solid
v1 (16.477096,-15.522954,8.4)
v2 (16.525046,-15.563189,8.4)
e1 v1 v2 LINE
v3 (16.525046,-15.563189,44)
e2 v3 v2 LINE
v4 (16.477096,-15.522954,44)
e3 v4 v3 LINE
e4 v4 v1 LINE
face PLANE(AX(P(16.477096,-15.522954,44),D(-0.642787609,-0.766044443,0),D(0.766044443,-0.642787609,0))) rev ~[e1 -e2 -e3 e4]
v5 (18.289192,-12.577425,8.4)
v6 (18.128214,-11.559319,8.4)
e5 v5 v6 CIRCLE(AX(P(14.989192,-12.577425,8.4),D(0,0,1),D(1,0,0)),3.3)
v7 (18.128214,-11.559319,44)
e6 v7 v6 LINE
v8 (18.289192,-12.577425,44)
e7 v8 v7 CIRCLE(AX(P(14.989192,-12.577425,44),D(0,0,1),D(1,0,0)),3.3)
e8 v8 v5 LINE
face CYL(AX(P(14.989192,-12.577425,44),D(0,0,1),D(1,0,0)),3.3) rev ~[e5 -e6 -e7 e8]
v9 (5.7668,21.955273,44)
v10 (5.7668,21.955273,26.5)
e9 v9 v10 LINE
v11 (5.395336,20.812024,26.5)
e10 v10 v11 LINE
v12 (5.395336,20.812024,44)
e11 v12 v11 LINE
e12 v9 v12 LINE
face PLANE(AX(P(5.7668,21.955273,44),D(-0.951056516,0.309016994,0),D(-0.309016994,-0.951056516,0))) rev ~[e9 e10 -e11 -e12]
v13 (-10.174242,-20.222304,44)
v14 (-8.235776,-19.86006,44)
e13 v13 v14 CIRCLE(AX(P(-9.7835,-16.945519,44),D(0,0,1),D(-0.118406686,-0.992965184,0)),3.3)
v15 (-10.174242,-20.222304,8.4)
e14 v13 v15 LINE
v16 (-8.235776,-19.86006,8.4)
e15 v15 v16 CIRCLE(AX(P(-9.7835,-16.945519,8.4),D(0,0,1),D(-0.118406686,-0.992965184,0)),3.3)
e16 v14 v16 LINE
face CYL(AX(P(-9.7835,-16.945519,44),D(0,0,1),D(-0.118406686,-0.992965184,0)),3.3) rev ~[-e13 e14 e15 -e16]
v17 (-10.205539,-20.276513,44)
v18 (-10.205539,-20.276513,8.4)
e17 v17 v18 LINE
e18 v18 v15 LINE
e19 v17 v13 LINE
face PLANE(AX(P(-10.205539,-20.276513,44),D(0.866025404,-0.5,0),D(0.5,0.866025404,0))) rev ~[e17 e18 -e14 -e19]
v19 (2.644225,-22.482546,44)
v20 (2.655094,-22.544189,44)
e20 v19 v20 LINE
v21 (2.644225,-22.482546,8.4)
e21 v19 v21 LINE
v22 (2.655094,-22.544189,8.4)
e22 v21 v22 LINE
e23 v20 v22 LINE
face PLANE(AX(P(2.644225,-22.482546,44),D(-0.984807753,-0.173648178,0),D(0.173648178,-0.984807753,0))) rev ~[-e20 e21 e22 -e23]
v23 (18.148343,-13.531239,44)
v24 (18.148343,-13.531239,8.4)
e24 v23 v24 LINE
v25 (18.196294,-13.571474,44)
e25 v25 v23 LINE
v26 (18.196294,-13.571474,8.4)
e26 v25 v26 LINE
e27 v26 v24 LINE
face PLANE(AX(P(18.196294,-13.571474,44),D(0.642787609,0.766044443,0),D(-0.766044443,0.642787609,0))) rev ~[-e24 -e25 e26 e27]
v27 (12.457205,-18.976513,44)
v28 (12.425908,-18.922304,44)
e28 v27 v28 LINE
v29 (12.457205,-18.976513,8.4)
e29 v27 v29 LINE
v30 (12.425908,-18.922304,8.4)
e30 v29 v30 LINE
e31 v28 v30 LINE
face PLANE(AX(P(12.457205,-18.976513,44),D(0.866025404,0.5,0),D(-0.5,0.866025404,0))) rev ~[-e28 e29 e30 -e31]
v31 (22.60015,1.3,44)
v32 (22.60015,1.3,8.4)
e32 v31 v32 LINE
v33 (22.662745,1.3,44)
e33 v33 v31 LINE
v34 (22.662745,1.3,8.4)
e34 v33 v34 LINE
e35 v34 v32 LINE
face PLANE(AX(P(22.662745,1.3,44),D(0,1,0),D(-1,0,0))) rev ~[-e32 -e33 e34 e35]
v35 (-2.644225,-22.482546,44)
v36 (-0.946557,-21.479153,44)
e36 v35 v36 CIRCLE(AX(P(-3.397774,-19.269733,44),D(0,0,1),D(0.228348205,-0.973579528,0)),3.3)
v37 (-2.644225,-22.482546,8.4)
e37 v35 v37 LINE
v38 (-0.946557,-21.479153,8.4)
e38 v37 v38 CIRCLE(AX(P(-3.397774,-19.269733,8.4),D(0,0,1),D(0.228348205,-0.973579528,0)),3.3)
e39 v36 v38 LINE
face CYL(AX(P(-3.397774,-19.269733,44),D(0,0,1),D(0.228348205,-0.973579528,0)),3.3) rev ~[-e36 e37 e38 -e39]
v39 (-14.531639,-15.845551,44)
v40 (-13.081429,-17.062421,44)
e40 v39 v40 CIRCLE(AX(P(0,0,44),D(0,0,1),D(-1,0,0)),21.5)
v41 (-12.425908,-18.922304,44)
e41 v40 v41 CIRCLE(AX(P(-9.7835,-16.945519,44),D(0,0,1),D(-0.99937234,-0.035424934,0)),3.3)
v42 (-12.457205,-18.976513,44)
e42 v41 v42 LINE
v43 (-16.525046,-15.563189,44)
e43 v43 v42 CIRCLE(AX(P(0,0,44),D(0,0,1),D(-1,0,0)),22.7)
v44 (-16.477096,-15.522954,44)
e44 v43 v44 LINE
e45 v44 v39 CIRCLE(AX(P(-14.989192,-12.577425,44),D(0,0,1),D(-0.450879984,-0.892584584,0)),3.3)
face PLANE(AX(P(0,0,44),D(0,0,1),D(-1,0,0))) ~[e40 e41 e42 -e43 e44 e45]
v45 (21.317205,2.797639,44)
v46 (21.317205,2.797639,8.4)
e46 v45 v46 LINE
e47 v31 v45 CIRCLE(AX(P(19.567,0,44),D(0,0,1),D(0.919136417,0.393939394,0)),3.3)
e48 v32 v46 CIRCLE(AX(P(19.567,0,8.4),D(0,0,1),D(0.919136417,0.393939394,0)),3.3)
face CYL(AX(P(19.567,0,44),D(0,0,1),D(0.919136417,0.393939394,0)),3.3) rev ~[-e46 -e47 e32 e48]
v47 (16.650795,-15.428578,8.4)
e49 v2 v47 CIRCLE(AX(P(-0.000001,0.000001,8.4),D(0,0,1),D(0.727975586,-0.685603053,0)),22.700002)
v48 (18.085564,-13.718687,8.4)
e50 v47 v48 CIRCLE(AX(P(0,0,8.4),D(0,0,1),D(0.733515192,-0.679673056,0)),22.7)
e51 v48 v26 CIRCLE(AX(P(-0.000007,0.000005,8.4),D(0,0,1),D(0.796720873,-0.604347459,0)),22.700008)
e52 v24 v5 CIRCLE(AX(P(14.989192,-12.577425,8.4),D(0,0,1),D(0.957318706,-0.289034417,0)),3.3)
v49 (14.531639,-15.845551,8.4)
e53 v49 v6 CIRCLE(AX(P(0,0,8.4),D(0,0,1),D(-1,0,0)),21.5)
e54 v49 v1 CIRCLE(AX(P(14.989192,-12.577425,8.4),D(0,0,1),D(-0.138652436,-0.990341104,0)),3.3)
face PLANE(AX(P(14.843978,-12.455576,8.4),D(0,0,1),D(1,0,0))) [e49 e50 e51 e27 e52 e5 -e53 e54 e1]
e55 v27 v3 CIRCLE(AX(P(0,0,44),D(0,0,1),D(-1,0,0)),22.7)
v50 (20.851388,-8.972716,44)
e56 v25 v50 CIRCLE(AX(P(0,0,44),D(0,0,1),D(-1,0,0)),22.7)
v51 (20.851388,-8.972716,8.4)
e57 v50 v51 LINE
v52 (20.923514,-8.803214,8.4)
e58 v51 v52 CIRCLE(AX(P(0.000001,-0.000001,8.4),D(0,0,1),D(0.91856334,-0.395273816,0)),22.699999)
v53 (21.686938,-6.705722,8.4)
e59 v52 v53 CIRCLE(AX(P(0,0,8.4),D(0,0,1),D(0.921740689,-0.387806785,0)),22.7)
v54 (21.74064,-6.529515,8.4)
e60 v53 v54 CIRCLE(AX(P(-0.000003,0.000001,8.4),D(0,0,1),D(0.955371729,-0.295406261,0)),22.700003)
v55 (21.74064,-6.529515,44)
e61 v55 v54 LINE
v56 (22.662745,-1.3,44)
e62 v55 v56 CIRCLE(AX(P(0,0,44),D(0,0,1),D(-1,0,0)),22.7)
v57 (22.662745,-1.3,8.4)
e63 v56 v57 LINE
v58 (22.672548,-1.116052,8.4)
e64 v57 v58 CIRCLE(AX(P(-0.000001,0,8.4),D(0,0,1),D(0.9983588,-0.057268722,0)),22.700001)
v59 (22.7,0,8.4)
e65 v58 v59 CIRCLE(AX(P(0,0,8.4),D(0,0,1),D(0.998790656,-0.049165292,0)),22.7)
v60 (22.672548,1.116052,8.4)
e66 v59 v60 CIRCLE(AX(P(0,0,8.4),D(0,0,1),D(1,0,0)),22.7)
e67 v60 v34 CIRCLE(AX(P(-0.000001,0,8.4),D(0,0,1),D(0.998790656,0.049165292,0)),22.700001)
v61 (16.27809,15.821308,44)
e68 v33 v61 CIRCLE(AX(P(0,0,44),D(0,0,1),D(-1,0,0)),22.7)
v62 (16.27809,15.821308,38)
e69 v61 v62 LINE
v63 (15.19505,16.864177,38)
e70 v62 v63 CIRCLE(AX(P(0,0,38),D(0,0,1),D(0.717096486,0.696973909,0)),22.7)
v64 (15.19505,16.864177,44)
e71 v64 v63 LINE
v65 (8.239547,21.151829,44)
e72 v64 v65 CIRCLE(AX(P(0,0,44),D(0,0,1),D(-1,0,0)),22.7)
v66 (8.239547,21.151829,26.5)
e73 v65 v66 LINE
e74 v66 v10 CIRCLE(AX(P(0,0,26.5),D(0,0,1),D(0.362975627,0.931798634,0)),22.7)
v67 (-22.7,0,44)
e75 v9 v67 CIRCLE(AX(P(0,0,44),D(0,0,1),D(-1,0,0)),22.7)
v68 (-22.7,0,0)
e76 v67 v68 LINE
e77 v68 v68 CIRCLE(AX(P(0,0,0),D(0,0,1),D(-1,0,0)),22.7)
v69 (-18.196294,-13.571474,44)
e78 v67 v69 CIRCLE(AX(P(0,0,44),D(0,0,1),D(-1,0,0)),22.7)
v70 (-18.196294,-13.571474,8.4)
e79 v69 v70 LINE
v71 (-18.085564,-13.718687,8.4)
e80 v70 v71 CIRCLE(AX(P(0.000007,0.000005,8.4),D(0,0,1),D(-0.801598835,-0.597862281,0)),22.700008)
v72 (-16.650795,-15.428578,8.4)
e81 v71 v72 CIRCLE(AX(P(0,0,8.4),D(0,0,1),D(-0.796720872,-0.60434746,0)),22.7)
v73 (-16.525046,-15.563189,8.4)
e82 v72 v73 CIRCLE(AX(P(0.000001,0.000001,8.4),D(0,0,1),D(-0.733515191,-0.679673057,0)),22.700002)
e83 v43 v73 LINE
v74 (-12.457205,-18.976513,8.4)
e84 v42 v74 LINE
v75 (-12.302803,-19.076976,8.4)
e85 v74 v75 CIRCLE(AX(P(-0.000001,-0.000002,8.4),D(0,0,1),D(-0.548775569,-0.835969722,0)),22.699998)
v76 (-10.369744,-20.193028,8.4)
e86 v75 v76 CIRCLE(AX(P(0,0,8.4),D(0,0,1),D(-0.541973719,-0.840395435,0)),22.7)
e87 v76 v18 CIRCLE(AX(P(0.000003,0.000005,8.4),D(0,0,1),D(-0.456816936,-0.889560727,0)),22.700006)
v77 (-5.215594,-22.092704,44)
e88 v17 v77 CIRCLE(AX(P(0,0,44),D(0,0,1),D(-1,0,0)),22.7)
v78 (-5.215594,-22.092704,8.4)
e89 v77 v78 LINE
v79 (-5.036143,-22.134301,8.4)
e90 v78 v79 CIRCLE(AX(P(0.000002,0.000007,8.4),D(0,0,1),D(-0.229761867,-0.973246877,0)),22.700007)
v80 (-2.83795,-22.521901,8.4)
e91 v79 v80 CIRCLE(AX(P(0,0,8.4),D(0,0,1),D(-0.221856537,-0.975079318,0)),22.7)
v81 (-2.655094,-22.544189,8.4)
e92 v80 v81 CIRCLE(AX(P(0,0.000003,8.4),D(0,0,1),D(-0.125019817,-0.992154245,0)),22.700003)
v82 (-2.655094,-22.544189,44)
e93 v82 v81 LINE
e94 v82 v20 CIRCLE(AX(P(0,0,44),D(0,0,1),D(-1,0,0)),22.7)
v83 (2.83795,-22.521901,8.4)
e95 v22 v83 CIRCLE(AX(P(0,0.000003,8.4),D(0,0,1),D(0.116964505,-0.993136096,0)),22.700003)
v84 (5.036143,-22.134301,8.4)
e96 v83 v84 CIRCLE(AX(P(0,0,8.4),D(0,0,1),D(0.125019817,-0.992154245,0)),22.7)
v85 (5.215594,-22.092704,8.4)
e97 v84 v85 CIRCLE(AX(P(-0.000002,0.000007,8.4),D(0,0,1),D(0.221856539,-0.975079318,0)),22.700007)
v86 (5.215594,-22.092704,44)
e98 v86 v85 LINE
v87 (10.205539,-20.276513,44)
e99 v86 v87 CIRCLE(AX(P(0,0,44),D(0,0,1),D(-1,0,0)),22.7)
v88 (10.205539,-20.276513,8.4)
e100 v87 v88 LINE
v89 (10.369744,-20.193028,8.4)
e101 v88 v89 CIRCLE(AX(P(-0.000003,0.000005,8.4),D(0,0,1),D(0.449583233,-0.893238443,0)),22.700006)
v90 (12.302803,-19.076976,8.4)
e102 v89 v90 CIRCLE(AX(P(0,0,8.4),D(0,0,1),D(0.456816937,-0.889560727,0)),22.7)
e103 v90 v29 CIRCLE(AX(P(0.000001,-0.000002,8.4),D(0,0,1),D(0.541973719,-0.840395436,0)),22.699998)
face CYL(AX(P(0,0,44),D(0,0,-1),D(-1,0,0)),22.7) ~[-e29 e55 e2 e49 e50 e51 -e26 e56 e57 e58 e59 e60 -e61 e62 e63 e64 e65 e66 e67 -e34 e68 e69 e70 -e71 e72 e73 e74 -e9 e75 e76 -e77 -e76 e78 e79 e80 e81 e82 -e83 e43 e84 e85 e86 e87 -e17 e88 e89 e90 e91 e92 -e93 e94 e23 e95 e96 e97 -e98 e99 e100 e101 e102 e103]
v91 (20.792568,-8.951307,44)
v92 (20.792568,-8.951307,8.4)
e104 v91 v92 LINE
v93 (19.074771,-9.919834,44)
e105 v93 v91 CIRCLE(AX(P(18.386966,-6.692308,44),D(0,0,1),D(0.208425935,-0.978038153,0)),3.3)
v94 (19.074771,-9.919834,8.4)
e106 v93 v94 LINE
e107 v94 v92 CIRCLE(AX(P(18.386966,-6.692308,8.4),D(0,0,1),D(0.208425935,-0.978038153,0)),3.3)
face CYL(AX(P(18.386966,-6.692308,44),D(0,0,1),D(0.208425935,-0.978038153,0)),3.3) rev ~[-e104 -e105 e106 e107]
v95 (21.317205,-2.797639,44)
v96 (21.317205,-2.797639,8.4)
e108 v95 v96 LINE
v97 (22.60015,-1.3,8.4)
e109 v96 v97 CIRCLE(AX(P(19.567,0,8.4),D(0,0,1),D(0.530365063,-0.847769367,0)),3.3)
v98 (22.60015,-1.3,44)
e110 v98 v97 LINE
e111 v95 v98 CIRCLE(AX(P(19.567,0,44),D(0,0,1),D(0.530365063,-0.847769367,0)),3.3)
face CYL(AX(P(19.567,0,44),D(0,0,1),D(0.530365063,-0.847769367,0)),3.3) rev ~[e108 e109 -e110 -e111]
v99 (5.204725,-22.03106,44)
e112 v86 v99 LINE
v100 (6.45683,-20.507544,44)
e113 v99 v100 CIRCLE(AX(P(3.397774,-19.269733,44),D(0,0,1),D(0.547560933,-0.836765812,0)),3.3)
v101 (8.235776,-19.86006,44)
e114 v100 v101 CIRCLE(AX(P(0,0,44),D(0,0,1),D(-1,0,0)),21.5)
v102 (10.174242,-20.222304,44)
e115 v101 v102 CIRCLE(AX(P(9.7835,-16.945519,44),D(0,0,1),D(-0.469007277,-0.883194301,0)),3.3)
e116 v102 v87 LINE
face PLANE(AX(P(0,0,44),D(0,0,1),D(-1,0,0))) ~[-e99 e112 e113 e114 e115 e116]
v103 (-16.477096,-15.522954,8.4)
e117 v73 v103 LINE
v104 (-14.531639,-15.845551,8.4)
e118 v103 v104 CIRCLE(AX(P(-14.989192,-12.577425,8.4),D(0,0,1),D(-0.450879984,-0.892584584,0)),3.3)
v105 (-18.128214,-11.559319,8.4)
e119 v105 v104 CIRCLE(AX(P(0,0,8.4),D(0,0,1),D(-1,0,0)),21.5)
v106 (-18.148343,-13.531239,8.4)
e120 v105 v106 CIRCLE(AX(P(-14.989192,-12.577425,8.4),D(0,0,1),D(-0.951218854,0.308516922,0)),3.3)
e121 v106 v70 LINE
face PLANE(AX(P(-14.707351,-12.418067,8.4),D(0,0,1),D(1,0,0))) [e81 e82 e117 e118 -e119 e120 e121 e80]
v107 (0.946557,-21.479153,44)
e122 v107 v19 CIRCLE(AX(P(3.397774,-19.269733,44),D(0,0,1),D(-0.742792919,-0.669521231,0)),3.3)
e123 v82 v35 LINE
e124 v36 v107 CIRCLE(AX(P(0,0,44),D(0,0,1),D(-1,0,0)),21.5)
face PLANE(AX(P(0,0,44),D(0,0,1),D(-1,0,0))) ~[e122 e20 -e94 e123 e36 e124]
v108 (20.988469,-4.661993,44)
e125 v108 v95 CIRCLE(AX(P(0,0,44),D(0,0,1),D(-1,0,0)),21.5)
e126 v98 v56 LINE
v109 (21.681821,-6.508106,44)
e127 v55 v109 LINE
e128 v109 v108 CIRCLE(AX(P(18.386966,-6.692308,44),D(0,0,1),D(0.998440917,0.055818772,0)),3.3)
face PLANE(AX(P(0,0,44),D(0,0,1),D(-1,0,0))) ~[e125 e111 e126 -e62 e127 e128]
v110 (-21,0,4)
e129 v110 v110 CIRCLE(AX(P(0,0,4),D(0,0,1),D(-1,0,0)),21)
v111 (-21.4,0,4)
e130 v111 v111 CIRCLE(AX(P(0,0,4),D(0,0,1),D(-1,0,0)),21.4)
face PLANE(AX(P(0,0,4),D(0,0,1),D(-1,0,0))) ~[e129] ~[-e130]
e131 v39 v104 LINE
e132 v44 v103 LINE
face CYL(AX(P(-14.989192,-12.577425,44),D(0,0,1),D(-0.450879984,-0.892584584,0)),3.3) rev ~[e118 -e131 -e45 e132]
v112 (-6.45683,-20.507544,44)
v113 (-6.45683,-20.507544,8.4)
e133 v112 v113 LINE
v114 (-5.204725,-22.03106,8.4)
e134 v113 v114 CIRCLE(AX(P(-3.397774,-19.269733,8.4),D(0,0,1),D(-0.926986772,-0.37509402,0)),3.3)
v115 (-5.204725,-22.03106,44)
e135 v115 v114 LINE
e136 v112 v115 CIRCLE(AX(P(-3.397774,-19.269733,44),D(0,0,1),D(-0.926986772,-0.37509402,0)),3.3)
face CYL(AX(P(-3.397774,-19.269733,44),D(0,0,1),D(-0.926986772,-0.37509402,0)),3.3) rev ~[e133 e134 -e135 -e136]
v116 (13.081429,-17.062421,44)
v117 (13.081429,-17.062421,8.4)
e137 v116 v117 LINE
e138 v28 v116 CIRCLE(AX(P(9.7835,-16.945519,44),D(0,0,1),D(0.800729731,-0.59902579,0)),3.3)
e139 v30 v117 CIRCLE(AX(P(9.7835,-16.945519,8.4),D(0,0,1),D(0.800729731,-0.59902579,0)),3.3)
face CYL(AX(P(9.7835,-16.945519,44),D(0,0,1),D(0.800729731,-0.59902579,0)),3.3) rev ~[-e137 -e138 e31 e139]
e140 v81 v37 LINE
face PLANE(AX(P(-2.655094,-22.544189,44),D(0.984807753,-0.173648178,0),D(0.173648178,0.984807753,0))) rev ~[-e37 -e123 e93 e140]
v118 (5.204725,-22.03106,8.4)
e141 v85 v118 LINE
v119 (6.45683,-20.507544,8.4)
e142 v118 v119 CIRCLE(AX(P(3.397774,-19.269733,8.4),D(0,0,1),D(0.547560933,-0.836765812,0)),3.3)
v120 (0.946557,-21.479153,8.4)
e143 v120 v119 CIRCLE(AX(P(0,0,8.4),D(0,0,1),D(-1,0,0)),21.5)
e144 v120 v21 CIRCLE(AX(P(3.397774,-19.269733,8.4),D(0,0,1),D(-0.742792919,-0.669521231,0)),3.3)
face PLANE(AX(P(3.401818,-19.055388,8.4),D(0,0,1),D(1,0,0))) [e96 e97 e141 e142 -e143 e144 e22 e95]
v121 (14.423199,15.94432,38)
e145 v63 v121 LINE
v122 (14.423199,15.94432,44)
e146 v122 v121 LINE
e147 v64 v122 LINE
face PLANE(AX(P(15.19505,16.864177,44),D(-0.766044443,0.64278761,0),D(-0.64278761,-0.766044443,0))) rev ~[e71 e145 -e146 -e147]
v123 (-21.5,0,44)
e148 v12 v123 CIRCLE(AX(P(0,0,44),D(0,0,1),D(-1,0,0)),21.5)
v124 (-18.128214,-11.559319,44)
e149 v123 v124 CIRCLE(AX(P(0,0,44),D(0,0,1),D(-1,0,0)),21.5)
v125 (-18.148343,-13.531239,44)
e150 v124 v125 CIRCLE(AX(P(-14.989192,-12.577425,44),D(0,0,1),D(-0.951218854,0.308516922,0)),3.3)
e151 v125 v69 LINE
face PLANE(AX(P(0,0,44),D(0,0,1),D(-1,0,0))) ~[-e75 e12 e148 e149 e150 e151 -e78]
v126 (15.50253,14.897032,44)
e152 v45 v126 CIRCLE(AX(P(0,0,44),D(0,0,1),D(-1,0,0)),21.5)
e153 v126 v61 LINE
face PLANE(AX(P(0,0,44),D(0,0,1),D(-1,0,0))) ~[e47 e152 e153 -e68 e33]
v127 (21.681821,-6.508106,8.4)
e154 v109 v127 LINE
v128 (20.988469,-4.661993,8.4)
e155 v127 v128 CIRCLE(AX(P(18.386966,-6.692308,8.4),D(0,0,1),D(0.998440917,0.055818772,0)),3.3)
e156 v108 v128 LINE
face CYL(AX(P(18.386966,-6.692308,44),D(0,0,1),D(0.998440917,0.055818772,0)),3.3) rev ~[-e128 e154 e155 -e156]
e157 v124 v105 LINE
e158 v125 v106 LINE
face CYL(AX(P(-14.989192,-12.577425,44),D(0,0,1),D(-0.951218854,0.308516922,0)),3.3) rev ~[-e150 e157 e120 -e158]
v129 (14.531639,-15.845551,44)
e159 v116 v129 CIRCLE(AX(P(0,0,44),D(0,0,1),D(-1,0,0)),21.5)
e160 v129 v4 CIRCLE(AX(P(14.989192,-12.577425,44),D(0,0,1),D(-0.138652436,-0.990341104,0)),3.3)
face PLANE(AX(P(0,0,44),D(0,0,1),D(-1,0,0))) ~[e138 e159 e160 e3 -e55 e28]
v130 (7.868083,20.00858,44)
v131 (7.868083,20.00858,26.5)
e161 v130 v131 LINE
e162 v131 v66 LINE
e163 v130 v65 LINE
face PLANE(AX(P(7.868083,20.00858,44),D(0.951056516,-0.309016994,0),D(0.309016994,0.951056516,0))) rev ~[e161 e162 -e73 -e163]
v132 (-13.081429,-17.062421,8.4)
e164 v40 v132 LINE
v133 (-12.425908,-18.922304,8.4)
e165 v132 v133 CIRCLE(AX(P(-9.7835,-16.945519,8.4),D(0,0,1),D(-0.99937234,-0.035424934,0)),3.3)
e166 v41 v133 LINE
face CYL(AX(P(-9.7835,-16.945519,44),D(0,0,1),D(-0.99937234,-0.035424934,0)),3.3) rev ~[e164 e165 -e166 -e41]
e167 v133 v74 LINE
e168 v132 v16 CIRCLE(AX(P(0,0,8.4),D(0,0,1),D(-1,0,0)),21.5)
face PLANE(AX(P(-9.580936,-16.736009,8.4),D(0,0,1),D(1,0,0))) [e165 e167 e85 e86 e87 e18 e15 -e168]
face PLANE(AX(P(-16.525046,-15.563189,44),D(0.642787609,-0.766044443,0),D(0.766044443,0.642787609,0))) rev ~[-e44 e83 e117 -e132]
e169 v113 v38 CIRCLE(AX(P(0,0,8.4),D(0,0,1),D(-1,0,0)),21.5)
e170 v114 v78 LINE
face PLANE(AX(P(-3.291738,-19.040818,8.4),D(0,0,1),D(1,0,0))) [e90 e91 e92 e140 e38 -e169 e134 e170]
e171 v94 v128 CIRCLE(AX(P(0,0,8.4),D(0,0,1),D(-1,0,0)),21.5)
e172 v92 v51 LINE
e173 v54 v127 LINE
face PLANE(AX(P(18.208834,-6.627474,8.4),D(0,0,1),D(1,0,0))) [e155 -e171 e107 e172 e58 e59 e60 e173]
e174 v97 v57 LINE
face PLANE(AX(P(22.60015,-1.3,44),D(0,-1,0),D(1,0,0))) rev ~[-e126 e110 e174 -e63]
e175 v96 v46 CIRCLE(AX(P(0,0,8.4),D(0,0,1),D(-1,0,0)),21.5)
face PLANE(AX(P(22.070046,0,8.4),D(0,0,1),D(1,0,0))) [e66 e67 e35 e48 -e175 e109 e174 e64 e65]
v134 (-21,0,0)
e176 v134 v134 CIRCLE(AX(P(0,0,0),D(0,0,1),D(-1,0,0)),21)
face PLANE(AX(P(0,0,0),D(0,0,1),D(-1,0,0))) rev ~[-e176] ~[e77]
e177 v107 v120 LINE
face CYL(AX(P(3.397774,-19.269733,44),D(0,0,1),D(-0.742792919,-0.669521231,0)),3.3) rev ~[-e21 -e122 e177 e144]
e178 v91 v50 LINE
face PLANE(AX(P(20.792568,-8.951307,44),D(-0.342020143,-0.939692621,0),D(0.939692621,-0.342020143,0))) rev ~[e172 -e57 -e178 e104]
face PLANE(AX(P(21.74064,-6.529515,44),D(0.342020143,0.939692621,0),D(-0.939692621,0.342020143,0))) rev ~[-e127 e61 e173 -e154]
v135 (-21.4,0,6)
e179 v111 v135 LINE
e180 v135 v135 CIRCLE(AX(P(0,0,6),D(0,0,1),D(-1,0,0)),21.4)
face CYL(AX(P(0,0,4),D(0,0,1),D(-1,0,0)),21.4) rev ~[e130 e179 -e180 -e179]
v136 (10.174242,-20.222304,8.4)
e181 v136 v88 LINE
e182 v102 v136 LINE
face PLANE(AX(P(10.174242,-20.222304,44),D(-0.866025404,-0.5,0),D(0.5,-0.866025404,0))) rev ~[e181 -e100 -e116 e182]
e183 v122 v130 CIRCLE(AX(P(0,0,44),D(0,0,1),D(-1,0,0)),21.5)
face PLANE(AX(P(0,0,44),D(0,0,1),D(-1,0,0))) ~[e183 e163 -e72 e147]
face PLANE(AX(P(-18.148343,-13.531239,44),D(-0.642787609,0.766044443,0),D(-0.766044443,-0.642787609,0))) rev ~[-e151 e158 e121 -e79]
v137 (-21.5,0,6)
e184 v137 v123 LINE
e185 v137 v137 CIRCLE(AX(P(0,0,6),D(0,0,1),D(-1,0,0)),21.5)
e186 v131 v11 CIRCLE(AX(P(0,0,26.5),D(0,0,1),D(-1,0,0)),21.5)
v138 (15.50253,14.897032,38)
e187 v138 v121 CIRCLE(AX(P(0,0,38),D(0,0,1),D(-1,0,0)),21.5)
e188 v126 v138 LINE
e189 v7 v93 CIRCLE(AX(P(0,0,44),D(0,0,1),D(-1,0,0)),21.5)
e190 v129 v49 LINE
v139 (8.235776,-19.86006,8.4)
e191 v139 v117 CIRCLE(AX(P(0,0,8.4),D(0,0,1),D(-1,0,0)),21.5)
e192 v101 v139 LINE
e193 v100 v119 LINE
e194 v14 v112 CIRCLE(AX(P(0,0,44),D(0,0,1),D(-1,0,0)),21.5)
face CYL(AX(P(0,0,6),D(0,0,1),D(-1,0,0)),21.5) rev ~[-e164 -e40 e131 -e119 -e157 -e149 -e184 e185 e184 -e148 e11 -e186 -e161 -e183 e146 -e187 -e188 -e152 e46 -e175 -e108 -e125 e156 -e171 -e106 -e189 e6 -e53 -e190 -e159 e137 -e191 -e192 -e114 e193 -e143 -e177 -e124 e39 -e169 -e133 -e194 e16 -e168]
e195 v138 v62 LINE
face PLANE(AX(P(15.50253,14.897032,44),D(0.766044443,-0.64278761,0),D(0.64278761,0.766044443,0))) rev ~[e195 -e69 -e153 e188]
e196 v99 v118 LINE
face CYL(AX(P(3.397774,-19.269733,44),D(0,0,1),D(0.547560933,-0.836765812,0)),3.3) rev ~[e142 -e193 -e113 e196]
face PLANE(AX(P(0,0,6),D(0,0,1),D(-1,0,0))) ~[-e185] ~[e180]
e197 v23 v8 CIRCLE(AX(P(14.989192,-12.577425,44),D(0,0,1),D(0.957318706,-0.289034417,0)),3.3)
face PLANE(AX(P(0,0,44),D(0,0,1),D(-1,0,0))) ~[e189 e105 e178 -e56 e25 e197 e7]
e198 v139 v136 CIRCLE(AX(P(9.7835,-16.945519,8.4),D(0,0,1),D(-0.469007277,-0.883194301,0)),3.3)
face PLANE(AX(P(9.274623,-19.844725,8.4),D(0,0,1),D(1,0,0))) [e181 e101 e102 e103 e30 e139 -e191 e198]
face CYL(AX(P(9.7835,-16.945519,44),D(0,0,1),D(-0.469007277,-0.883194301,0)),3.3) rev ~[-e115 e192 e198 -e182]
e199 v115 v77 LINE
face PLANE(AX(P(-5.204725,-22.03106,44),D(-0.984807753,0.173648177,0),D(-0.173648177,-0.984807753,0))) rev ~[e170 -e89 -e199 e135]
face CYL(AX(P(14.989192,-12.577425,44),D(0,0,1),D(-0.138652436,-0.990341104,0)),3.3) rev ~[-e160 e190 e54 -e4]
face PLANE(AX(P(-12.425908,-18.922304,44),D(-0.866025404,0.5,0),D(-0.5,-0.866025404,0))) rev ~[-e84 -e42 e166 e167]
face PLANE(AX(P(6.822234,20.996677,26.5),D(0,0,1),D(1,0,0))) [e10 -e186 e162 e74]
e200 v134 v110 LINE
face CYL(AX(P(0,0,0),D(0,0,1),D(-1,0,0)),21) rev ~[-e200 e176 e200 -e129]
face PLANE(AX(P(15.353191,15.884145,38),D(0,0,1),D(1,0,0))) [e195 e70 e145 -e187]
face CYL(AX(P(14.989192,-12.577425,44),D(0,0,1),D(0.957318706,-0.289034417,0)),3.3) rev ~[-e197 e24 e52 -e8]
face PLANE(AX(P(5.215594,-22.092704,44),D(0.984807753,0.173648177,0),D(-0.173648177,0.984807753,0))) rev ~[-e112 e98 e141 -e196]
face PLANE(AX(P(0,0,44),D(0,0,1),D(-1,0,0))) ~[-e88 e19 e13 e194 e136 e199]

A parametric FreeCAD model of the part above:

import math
import FreeCAD as App
import Part
import Sketcher
Q = App.Units.Quantity


def add_polygon(sketch, points):
    """Adds a closed chain of lines whose ends are joined by coincident constraints."""
    first, n = sketch.GeometryCount, len(points)
    for a, b in zip(points, points[1:] + points[:1]):
        sketch.addGeometry(Part.LineSegment(App.Vector(*a, 0), App.Vector(*b, 0)), False)
    for i in range(n):
        sketch.addConstraint(Sketcher.Constraint("Coincident", first + i, 2, first + (i + 1) % n, 1))

doc = App.newDocument("Part")
params = doc.addObject("Spreadsheet::Sheet", "Params")
for row, (alias, value) in enumerate([
    ("sketch1_height", "44 mm"),
    ("sketch1_height2", "4 mm"),
    ("sketch1_height3", "2 mm"),
    ("sketch1_width", "1.7 mm"),
    ("sketch1_width2", "0.4 mm"),
    ("revolution_angle", "360 deg"),
    ("sketch2_radius", "22.7 mm"),
    ("sketch2_radius2", "3.3 mm"),
    ("pocket1_length", "35.6 mm"),
    ("sketch3_radius", "21 mm"),
    ("sketch3_radius2", "22.7 mm"),
    ("pocket2_length", "17.5 mm"),
    ("sketch4_radius", "21 mm"),
    ("sketch4_radius2", "22.7 mm"),
    ("pocket3_length", "6 mm"),
], start=1):
    params.set(f"A{row}", alias)
    params.set(f"B{row}", "=" + value)
    params.setAlias(f"B{row}", alias)

body = doc.addObject("PartDesign::Body", "Body")

# Sketch on XZ plane
sketch1 = body.newObject("Sketcher::SketchObject", "Sketch")
sketch1.AttachmentSupport = (doc.getObject("XZ_Plane"), [""])
sketch1.MapMode = "FlatFace"
add_polygon(sketch1, [(-22.7, 44), (-22.7, 0), (-21, 0), (-21, 4), (-21.4, 4), (-21.4, 6), (-21.5, 6), (-21.5, 44)])  # lines 0-7
sketch1.addConstraint([
    Sketcher.Constraint("Vertical", 0),
    Sketcher.Constraint("Horizontal", 1),
    Sketcher.Constraint("Vertical", 2),
    Sketcher.Constraint("Horizontal", 3),
    Sketcher.Constraint("Vertical", 4),
    Sketcher.Constraint("Horizontal", 5),
    Sketcher.Constraint("Vertical", 6),
    Sketcher.Constraint("Horizontal", 7),
    Sketcher.Constraint("PointOnObject", 0, 2, -1),
    Sketcher.Constraint("DistanceY", 0, 2, 0, 1, Q("44 mm")),
    Sketcher.Constraint("DistanceY", 2, 1, 2, 2, Q("4 mm")),
    Sketcher.Constraint("DistanceY", 4, 1, 4, 2, Q("2 mm")),
    Sketcher.Constraint("DistanceX", 1, 1, 1, 2, Q("1.7 mm")),
    Sketcher.Constraint("DistanceX", 3, 2, 3, 1, Q("0.4 mm")),
    Sketcher.Constraint("DistanceX", 5, 2, 5, 1, Q("0.1 mm")),
    Sketcher.Constraint("DistanceX", 1, 2, -1, 1, Q("21 mm")),
])
sketch1.setExpression("Constraints[17]", "Params.sketch1_height")
sketch1.setExpression("Constraints[18]", "Params.sketch1_height2")
sketch1.setExpression("Constraints[19]", "Params.sketch1_height3")
sketch1.setExpression("Constraints[20]", "Params.sketch1_width")
sketch1.setExpression("Constraints[21]", "Params.sketch1_width2")
revolution = body.newObject("PartDesign::Revolution", "Revolution")
revolution.Profile = sketch1
revolution.ReferenceAxis = (sketch1, ["V_Axis"])
revolution.setExpression("Angle", "Params.revolution_angle")

# Sketch on XY plane
sketch2 = body.newObject("Sketcher::SketchObject", "Sketch001")
sketch2.AttachmentSupport = (doc.getObject("XY_Plane"), [""])
sketch2.MapMode = "FlatFace"
sketch2.AttachmentOffset = App.Placement(App.Vector(0, 0, 44), App.Rotation())
sketch2.addGeometry([
    Part.ArcOfCircle(Part.Circle(App.Vector(0, 0, 0), App.Vector(0, 0, 1), 22.7), math.radians(0), math.radians(2.82)),  # 0
    Part.ArcOfCircle(Part.Circle(App.Vector(0, 0, 0), App.Vector(0, 0, 1), 22.7), math.radians(2.82), math.radians(3.28)),  # 1
    Part.LineSegment(App.Vector(22.66, 1.3, 0), App.Vector(22.6, 1.3, 0)),  # 2
    Part.ArcOfCircle(Part.Circle(App.Vector(19.57, 0, 0), App.Vector(0, 0, 1), 3.3), math.radians(23), math.radians(58)),  # 3
    Part.ArcOfCircle(Part.Circle(App.Vector(19.57, 0, 0), App.Vector(0, 0, 1), 3.3), math.radians(58), math.radians(302)),  # 4
    Part.ArcOfCircle(Part.Circle(App.Vector(19.57, 0, 0), App.Vector(0, 0, 1), 3.3), math.radians(-58), math.radians(-23)),  # 5
    Part.LineSegment(App.Vector(22.6, -1.3, 0), App.Vector(22.66, -1.3, 0)),  # 6
    Part.ArcOfCircle(Part.Circle(App.Vector(0, 0, 0), App.Vector(0, 0, 1), 22.7), math.radians(-3.28), math.radians(-2.82)),  # 7
    Part.ArcOfCircle(Part.Circle(App.Vector(0, 0, 0), App.Vector(0, 0, 1), 22.7), math.radians(-2.82), math.radians(0)),  # 8
    Part.ArcOfCircle(Part.Circle(App.Vector(18.39, -6.69, 0), App.Vector(0, 0, 1), 3.3), math.radians(38), math.radians(282)),  # 9
    Part.ArcOfCircle(Part.Circle(App.Vector(18.39, -6.69, 0), App.Vector(0, 0, 1), 3.3), math.radians(-78), math.radians(-43)),  # 10
    Part.LineSegment(App.Vector(20.79, -8.95, 0), App.Vector(20.85, -8.97, 0)),  # 11
    Part.ArcOfCircle(Part.Circle(App.Vector(0, 0, 0), App.Vector(0, 0, 1), 22.7), math.radians(-23.28), math.radians(-22.82)),  # 12
    Part.ArcOfCircle(Part.Circle(App.Vector(0, 0, 0), App.Vector(0, 0, 1), 22.7), math.radians(-22.82), math.radians(-17.18)),  # 13
    Part.ArcOfCircle(Part.Circle(App.Vector(0, 0, 0), App.Vector(0, 0, 1), 22.7), math.radians(-17.18), math.radians(-16.72)),  # 14
    Part.LineSegment(App.Vector(21.74, -6.53, 0), App.Vector(21.68, -6.51, 0)),  # 15
    Part.ArcOfCircle(Part.Circle(App.Vector(18.39, -6.69, 0), App.Vector(0, 0, 1), 3.3), math.radians(3), math.radians(38)),  # 16
    Part.ArcOfCircle(Part.Circle(App.Vector(14.99, -12.58, 0), App.Vector(0, 0, 1), 3.3), math.radians(18), math.radians(262)),  # 17
    Part.ArcOfCircle(Part.Circle(App.Vector(14.99, -12.58, 0), App.Vector(0, 0, 1), 3.3), math.radians(-98), math.radians(-63)),  # 18
    Part.LineSegment(App.Vector(16.48, -15.52, 0), App.Vector(16.53, -15.56, 0)),  # 19
    Part.ArcOfCircle(Part.Circle(App.Vector(0, 0, 0), App.Vector(0, 0, 1), 22.7), math.radians(-43.28), math.radians(-42.82)),  # 20
    Part.ArcOfCircle(Part.Circle(App.Vector(0, 0, 0), App.Vector(0, 0, 1), 22.7), math.radians(-42.82), math.radians(-37.18)),  # 21
    Part.ArcOfCircle(Part.Circle(App.Vector(0, 0, 0), App.Vector(0, 0, 1), 22.7), math.radians(-37.18), math.radians(-36.72)),  # 22
    Part.LineSegment(App.Vector(18.2, -13.57, 0), App.Vector(18.15, -13.53, 0)),  # 23
    Part.ArcOfCircle(Part.Circle(App.Vector(14.99, -12.58, 0), App.Vector(0, 0, 1), 3.3), math.radians(-16.8), math.radians(0)),  # 24
    Part.ArcOfCircle(Part.Circle(App.Vector(14.99, -12.58, 0), App.Vector(0, 0, 1), 3.3), math.radians(0), math.radians(17.97)),  # 25
    Part.ArcOfCircle(Part.Circle(App.Vector(9.78, -16.95, 0), App.Vector(0, 0, 1), 3.3), math.radians(-118), math.radians(-83)),  # 26
    Part.LineSegment(App.Vector(10.17, -20.22, 0), App.Vector(10.21, -20.28, 0)),  # 27
    Part.ArcOfCircle(Part.Circle(App.Vector(0, 0, 0), App.Vector(0, 0, 1), 22.7), math.radians(-63.28), math.radians(-62.82)),  # 28
    Part.ArcOfCircle(Part.Circle(App.Vector(0, 0, 0), App.Vector(0, 0, 1), 22.7), math.radians(-62.82), math.radians(-57.18)),  # 29
    Part.ArcOfCircle(Part.Circle(App.Vector(0, 0, 0), App.Vector(0, 0, 1), 22.7), math.radians(-57.18), math.radians(-56.72)),  # 30
    Part.LineSegment(App.Vector(12.46, -18.98, 0), App.Vector(12.43, -18.92, 0)),  # 31
    Part.ArcOfCircle(Part.Circle(App.Vector(9.78, -16.95, 0), App.Vector(0, 0, 1), 3.3), math.radians(-37), math.radians(-2)),  # 32
    Part.ArcOfCircle(Part.Circle(App.Vector(9.78, -16.95, 0), App.Vector(0, 0, 1), 3.3), math.radians(-2.03), math.radians(0)),  # 33
    Part.ArcOfCircle(Part.Circle(App.Vector(9.78, -16.95, 0), App.Vector(0, 0, 1), 3.3), math.radians(0), math.radians(242)),  # 34
    Part.ArcOfCircle(Part.Circle(App.Vector(3.4, -19.27, 0), App.Vector(0, 0, 1), 3.3), math.radians(-22), math.radians(0)),  # 35
    Part.ArcOfCircle(Part.Circle(App.Vector(3.4, -19.27, 0), App.Vector(0, 0, 1), 3.3), math.radians(0), math.radians(222)),  # 36
    Part.ArcOfCircle(Part.Circle(App.Vector(3.4, -19.27, 0), App.Vector(0, 0, 1), 3.3), math.radians(-138), math.radians(-103)),  # 37
    Part.LineSegment(App.Vector(2.64, -22.48, 0), App.Vector(2.66, -22.54, 0)),  # 38
    Part.ArcOfCircle(Part.Circle(App.Vector(0, 0, 0), App.Vector(0, 0, 1), 22.7), math.radians(-83.28), math.radians(-82.82)),  # 39
    Part.ArcOfCircle(Part.Circle(App.Vector(0, 0, 0), App.Vector(0, 0, 1), 22.7), math.radians(-82.82), math.radians(-77.18)),  # 40
    Part.ArcOfCircle(Part.Circle(App.Vector(0, 0, 0), App.Vector(0, 0, 1), 22.7), math.radians(-77.18), math.radians(-76.72)),  # 41
    Part.LineSegment(App.Vector(5.22, -22.09, 0), App.Vector(5.2, -22.03, 0)),  # 42
    Part.ArcOfCircle(Part.Circle(App.Vector(3.4, -19.27, 0), App.Vector(0, 0, 1), 3.3), math.radians(-57), math.radians(-22)),  # 43
    Part.ArcOfCircle(Part.Circle(App.Vector(-3.4, -19.27, 0), App.Vector(0, 0, 1), 3.3), math.radians(0), math.radians(202)),  # 44
    Part.ArcOfCircle(Part.Circle(App.Vector(-3.4, -19.27, 0), App.Vector(0, 0, 1), 3.3), math.radians(-158), math.radians(-123)),  # 45
    Part.LineSegment(App.Vector(-5.2, -22.03, 0), App.Vector(-5.22, -22.09, 0)),  # 46
    Part.ArcOfCircle(Part.Circle(App.Vector(0, 0, 0), App.Vector(0, 0, 1), 22.7), math.radians(-103.28), math.radians(-102.82)),  # 47
    Part.ArcOfCircle(Part.Circle(App.Vector(0, 0, 0), App.Vector(0, 0, 1), 22.7), math.radians(-102.82), math.radians(-97.18)),  # 48
    Part.ArcOfCircle(Part.Circle(App.Vector(0, 0, 0), App.Vector(0, 0, 1), 22.7), math.radians(-97.18), math.radians(-96.72)),  # 49
    Part.LineSegment(App.Vector(-2.66, -22.54, 0), App.Vector(-2.64, -22.48, 0)),  # 50
    Part.ArcOfCircle(Part.Circle(App.Vector(-3.4, -19.27, 0), App.Vector(0, 0, 1), 3.3), math.radians(-77), math.radians(-42)),  # 51
    Part.ArcOfCircle(Part.Circle(App.Vector(-3.4, -19.27, 0), App.Vector(0, 0, 1), 3.3), math.radians(-42), math.radians(0)),  # 52
    Part.ArcOfCircle(Part.Circle(App.Vector(-9.78, -16.95, 0), App.Vector(0, 0, 1), 3.3), math.radians(0), math.radians(182)),  # 53
    Part.ArcOfCircle(Part.Circle(App.Vector(-9.78, -16.95, 0), App.Vector(0, 0, 1), 3.3), math.radians(-178), math.radians(-143)),  # 54
    Part.LineSegment(App.Vector(-12.43, -18.92, 0), App.Vector(-12.46, -18.98, 0)),  # 55
    Part.ArcOfCircle(Part.Circle(App.Vector(0, 0, 0), App.Vector(0, 0, 1), 22.7), math.radians(-123.28), math.radians(-122.82)),  # 56
    Part.ArcOfCircle(Part.Circle(App.Vector(0, 0, 0), App.Vector(0, 0, 1), 22.7), math.radians(-122.82), math.radians(-117.18)),  # 57
    Part.ArcOfCircle(Part.Circle(App.Vector(0, 0, 0), App.Vector(0, 0, 1), 22.7), math.radians(-117.18), math.radians(-116.72)),  # 58
    Part.LineSegment(App.Vector(-10.21, -20.28, 0), App.Vector(-10.17, -20.22, 0)),  # 59
    Part.ArcOfCircle(Part.Circle(App.Vector(-9.78, -16.95, 0), App.Vector(0, 0, 1), 3.3), math.radians(-97), math.radians(-62)),  # 60
    Part.ArcOfCircle(Part.Circle(App.Vector(-9.78, -16.95, 0), App.Vector(0, 0, 1), 3.3), math.radians(-62), math.radians(0)),  # 61
    Part.ArcOfCircle(Part.Circle(App.Vector(-14.99, -12.58, 0), App.Vector(0, 0, 1), 3.3), math.radians(0), math.radians(162)),  # 62
    Part.ArcOfCircle(Part.Circle(App.Vector(-14.99, -12.58, 0), App.Vector(0, 0, 1), 3.3), math.radians(162), math.radians(197)),  # 63
    Part.LineSegment(App.Vector(-18.15, -13.53, 0), App.Vector(-18.2, -13.57, 0)),  # 64
    Part.ArcOfCircle(Part.Circle(App.Vector(0, 0, 0), App.Vector(0, 0, 1), 22.7), math.radians(-143.28), math.radians(-142.82)),  # 65
    Part.ArcOfCircle(Part.Circle(App.Vector(0, 0, 0), App.Vector(0, 0, 1), 22.7), math.radians(-142.82), math.radians(-137.18)),  # 66
    Part.ArcOfCircle(Part.Circle(App.Vector(0, 0, 0), App.Vector(0, 0, 1), 22.7), math.radians(-137.18), math.radians(-136.72)),  # 67
    Part.LineSegment(App.Vector(-16.53, -15.56, 0), App.Vector(-16.48, -15.52, 0)),  # 68
    Part.ArcOfCircle(Part.Circle(App.Vector(-14.99, -12.58, 0), App.Vector(0, 0, 1), 3.3), math.radians(-117), math.radians(-82)),  # 69
    Part.ArcOfCircle(Part.Circle(App.Vector(-14.99, -12.58, 0), App.Vector(0, 0, 1), 3.3), math.radians(-82), math.radians(0)),  # 70
], False)
sketch2.addConstraint([
    Sketcher.Constraint("Tangent", 0, 2, 1, 1),
    Sketcher.Constraint("Coincident", 1, 2, 2, 1),
    Sketcher.Constraint("Coincident", 2, 2, 3, 1),
    Sketcher.Constraint("Tangent", 3, 2, 4, 1),
    Sketcher.Constraint("Tangent", 4, 2, 5, 1),
    Sketcher.Constraint("Coincident", 5, 2, 6, 1),
    Sketcher.Constraint("Coincident", 6, 2, 7, 1),
    Sketcher.Constraint("Tangent", 7, 2, 8, 1),
    Sketcher.Constraint("Tangent", 8, 2, 0, 1),
    Sketcher.Constraint("Tangent", 9, 2, 10, 1),
    Sketcher.Constraint("Coincident", 10, 2, 11, 1),
    Sketcher.Constraint("Coincident", 11, 2, 12, 1),
    Sketcher.Constraint("Tangent", 12, 2, 13, 1),
    Sketcher.Constraint("Tangent", 13, 2, 14, 1),
    Sketcher.Constraint("Coincident", 14, 2, 15, 1),
    Sketcher.Constraint("Coincident", 15, 2, 16, 1),
    Sketcher.Constraint("Tangent", 16, 2, 9, 1),
    Sketcher.Constraint("Tangent", 17, 2, 18, 1),
    Sketcher.Constraint("Coincident", 18, 2, 19, 1),
    Sketcher.Constraint("Coincident", 19, 2, 20, 1),
    Sketcher.Constraint("Tangent", 20, 2, 21, 1),
    Sketcher.Constraint("Tangent", 21, 2, 22, 1),
    Sketcher.Constraint("Coincident", 22, 2, 23, 1),
    Sketcher.Constraint("Coincident", 23, 2, 24, 1),
    Sketcher.Constraint("Tangent", 24, 2, 25, 1),
    Sketcher.Constraint("Tangent", 25, 2, 17, 1),
    Sketcher.Constraint("Coincident", 26, 2, 27, 1),
    Sketcher.Constraint("Coincident", 27, 2, 28, 1),
    Sketcher.Constraint("Tangent", 28, 2, 29, 1),
    Sketcher.Constraint("Tangent", 29, 2, 30, 1),
    Sketcher.Constraint("Coincident", 30, 2, 31, 1),
    Sketcher.Constraint("Coincident", 31, 2, 32, 1),
    Sketcher.Constraint("Tangent", 32, 2, 33, 1),
    Sketcher.Constraint("Tangent", 33, 2, 34, 1),
    Sketcher.Constraint("Tangent", 34, 2, 26, 1),
    Sketcher.Constraint("Tangent", 35, 2, 36, 1),
    Sketcher.Constraint("Tangent", 36, 2, 37, 1),
    Sketcher.Constraint("Coincident", 37, 2, 38, 1),
    Sketcher.Constraint("Coincident", 38, 2, 39, 1),
    Sketcher.Constraint("Tangent", 39, 2, 40, 1),
    Sketcher.Constraint("Tangent", 40, 2, 41, 1),
    Sketcher.Constraint("Coincident", 41, 2, 42, 1),
    Sketcher.Constraint("Coincident", 42, 2, 43, 1),
    Sketcher.Constraint("Tangent", 43, 2, 35, 1),
    Sketcher.Constraint("Tangent", 44, 2, 45, 1),
    Sketcher.Constraint("Coincident", 45, 2, 46, 1),
    Sketcher.Constraint("Coincident", 46, 2, 47, 1),
    Sketcher.Constraint("Tangent", 47, 2, 48, 1),
    Sketcher.Constraint("Tangent", 48, 2, 49, 1),
    Sketcher.Constraint("Coincident", 49, 2, 50, 1),
    Sketcher.Constraint("Coincident", 50, 2, 51, 1),
    Sketcher.Constraint("Tangent", 51, 2, 52, 1),
    Sketcher.Constraint("Tangent", 52, 2, 44, 1),
    Sketcher.Constraint("Tangent", 53, 2, 54, 1),
    Sketcher.Constraint("Coincident", 54, 2, 55, 1),
    Sketcher.Constraint("Coincident", 55, 2, 56, 1),
    Sketcher.Constraint("Tangent", 56, 2, 57, 1),
    Sketcher.Constraint("Tangent", 57, 2, 58, 1),
    Sketcher.Constraint("Coincident", 58, 2, 59, 1),
    Sketcher.Constraint("Coincident", 59, 2, 60, 1),
    Sketcher.Constraint("Tangent", 60, 2, 61, 1),
    Sketcher.Constraint("Tangent", 61, 2, 53, 1),
    Sketcher.Constraint("Tangent", 62, 2, 63, 1),
    Sketcher.Constraint("Coincident", 63, 2, 64, 1),
    Sketcher.Constraint("Coincident", 64, 2, 65, 1),
    Sketcher.Constraint("Tangent", 65, 2, 66, 1),
    Sketcher.Constraint("Tangent", 66, 2, 67, 1),
    Sketcher.Constraint("Coincident", 67, 2, 68, 1),
    Sketcher.Constraint("Coincident", 68, 2, 69, 1),
    Sketcher.Constraint("Tangent", 69, 2, 70, 1),
    Sketcher.Constraint("Tangent", 70, 2, 62, 1),
    Sketcher.Constraint("Horizontal", 2),
    Sketcher.Constraint("Horizontal", 6),
    Sketcher.Constraint("Coincident", 0, 3, -1, 1),
    Sketcher.Constraint("Coincident", 7, 3, -1, 1),
    Sketcher.Constraint("Coincident", 12, 3, -1, 1),
    Sketcher.Constraint("Coincident", 14, 3, -1, 1),
    Sketcher.Constraint("Coincident", 20, 3, -1, 1),
    Sketcher.Constraint("Coincident", 22, 3, -1, 1),
    Sketcher.Constraint("Coincident", 28, 3, -1, 1),
    Sketcher.Constraint("Coincident", 30, 3, -1, 1),
    Sketcher.Constraint("Coincident", 39, 3, -1, 1),
    Sketcher.Constraint("Coincident", 41, 3, -1, 1),
    Sketcher.Constraint("Coincident", 47, 3, -1, 1),
    Sketcher.Constraint("Coincident", 49, 3, -1, 1),
    Sketcher.Constraint("Coincident", 56, 3, -1, 1),
    Sketcher.Constraint("Coincident", 58, 3, -1, 1),
    Sketcher.Constraint("Coincident", 65, 3, -1, 1),
    Sketcher.Constraint("Coincident", 67, 3, -1, 1),
    Sketcher.Constraint("Coincident", 5, 3, 3, 3),
    Sketcher.Constraint("Coincident", 24, 3, 17, 3),
    Sketcher.Constraint("Coincident", 32, 3, 26, 3),
    Sketcher.Constraint("Coincident", 37, 3, 35, 3),
    Sketcher.Constraint("Coincident", 51, 3, 44, 3),
    Sketcher.Constraint("Coincident", 60, 3, 53, 3),
    Sketcher.Constraint("Coincident", 69, 3, 62, 3),
    Sketcher.Constraint("Equal", 0, 1),
    Sketcher.Constraint("Equal", 5, 9),
    Sketcher.Constraint("Equal", 9, 10),
    Sketcher.Constraint("Equal", 8, 12),
    Sketcher.Constraint("Equal", 10, 16),
    Sketcher.Constraint("Equal", 16, 17),
    Sketcher.Constraint("Equal", 17, 18),
    Sketcher.Constraint("Equal", 14, 20),
    Sketcher.Constraint("Equal", 25, 26),
    Sketcher.Constraint("Equal", 21, 29),
    Sketcher.Constraint("Equal", 26, 32),
    Sketcher.Constraint("Equal", 34, 35),
    Sketcher.Constraint("Equal", 20, 39),
    Sketcher.Constraint("Equal", 37, 43),
    Sketcher.Constraint("Equal", 43, 44),
    Sketcher.Constraint("Equal", 44, 45),
    Sketcher.Constraint("Equal", 41, 47),
    Sketcher.Constraint("Equal", 52, 53),
    Sketcher.Constraint("Equal", 53, 54),
    Sketcher.Constraint("Equal", 48, 56),
    Sketcher.Constraint("Equal", 61, 62),
    Sketcher.Constraint("Equal", 62, 63),
    Sketcher.Constraint("Equal", 47, 65),
    Sketcher.Constraint("Symmetric", 35, 3, 44, 3, -2),
    Sketcher.Constraint("Symmetric", 26, 3, 53, 3, -2),
    Sketcher.Constraint("Symmetric", 17, 3, 62, 3, -2),
    Sketcher.Constraint("Symmetric", 3, 2, 4, 2, -1),
    Sketcher.Constraint("PointOnObject", 8, 2, -1),
    Sketcher.Constraint("Parallel", 11, 15),
    Sketcher.Constraint("Parallel", 19, 23),
    Sketcher.Constraint("Parallel", 27, 31),
    Sketcher.Constraint("Parallel", 38, 42),
    Sketcher.Constraint("Parallel", 46, 50),
    Sketcher.Constraint("Parallel", 55, 59),
    Sketcher.Constraint("Parallel", 64, 68),
    Sketcher.Constraint("Horizontal", 70, 3, 24, 2),
    Sketcher.Constraint("Horizontal", 61, 3, 33, 2),
    Sketcher.Constraint("Horizontal", 52, 3, 35, 2),
    Sketcher.Constraint("Horizontal", 43, 2, 44, 2),
    Sketcher.Constraint("Horizontal", 42, 2, 45, 2),
    Sketcher.Constraint("Horizontal", 41, 2, 46, 2),
    Sketcher.Constraint("Horizontal", 40, 2, 47, 2),
    Sketcher.Constraint("Horizontal", 39, 2, 48, 2),
    Sketcher.Constraint("Horizontal", 38, 2, 49, 2),
    Sketcher.Constraint("Horizontal", 36, 2, 51, 2),
    Sketcher.Constraint("Horizontal", 35, 2, 52, 2),
    Sketcher.Constraint("Horizontal", 32, 2, 53, 2),
    Sketcher.Constraint("Horizontal", 31, 2, 54, 2),
    Sketcher.Constraint("Horizontal", 30, 2, 55, 2),
    Sketcher.Constraint("Horizontal", 29, 2, 56, 2),
    Sketcher.Constraint("Horizontal", 28, 2, 57, 2),
    Sketcher.Constraint("Horizontal", 27, 2, 58, 2),
    Sketcher.Constraint("Horizontal", 34, 2, 60, 2),
    Sketcher.Constraint("Horizontal", 33, 2, 61, 2),
    Sketcher.Constraint("Horizontal", 25, 2, 62, 2),
    Sketcher.Constraint("Horizontal", 23, 2, 63, 2),
    Sketcher.Constraint("Horizontal", 22, 2, 64, 2),
    Sketcher.Constraint("Horizontal", 21, 2, 65, 2),
    Sketcher.Constraint("Horizontal", 20, 2, 66, 2),
    Sketcher.Constraint("Horizontal", 19, 2, 67, 2),
    Sketcher.Constraint("Horizontal", 17, 2, 69, 2),
    Sketcher.Constraint("Horizontal", 24, 2, 70, 2),
    Sketcher.Constraint("Vertical", 2, 2, 5, 2),
    Sketcher.Constraint("Vertical", 0, 2, 7, 2),
    Sketcher.Constraint("Equal", 11, 15),
    Sketcher.Constraint("Equal", 15, 19),
    Sketcher.Constraint("Equal", 19, 23),
    Sketcher.Constraint("Equal", 23, 27),
    Sketcher.Constraint("Equal", 27, 31),
    Sketcher.Constraint("Equal", 31, 38),
    Sketcher.Constraint("Equal", 38, 42),
    Sketcher.Constraint("Radius", 0, Q("22.7 mm")),
    Sketcher.Constraint("Radius", 3, Q("3.3 mm")),
    Sketcher.Constraint("Angle", 11, Q("-20 deg")),
    Sketcher.Constraint("Angle", 19, Q("-40.000001 deg")),
    Sketcher.Constraint("Angle", 27, Q("-60 deg")),
    Sketcher.Constraint("Angle", 38, Q("-80 deg")),
    Sketcher.Constraint("DistanceY", -1, 1, 1, 2, Q("1.3 mm")),
    Sketcher.Constraint("DistanceX", -1, 1, 3, 3, Q("19.567 mm")),
    Sketcher.Constraint("DistanceX", -1, 1, 26, 3, Q("9.7835 mm")),
    Sketcher.Constraint("DistanceY", 39, 2, -1, 1, Q("22.521901 mm")),
    Sketcher.Constraint("DistanceY", 40, 2, -1, 1, Q("22.134301 mm")),
    Sketcher.Constraint("DistanceY", 9, 3, -1, 1, Q("6.692308 mm")),
    Sketcher.Constraint("DistanceX", -1, 1, 17, 3, Q("14.989192 mm")),
    Sketcher.Constraint("DistanceY", 26, 3, -1, 1, Q("16.945519 mm")),
    Sketcher.Constraint("DistanceY", -1, 1, 3, 2, Q("2.797639 mm")),
    Sketcher.Constraint("DistanceX", -1, 1, 9, 2, Q("19.074771 mm")),
    Sketcher.Constraint("DistanceX", -1, 1, 10, 2, Q("20.792568 mm")),
    Sketcher.Constraint("DistanceX", -1, 1, 13, 2, Q("21.686938 mm")),
    Sketcher.Constraint("DistanceX", -1, 1, 14, 2, Q("21.74064 mm")),
    Sketcher.Constraint("DistanceX", -1, 1, 16, 2, Q("20.988469 mm")),
    Sketcher.Constraint("DistanceX", -1, 1, 17, 2, Q("14.531639 mm")),
    Sketcher.Constraint("DistanceY", 17, 2, -1, 1, Q("15.845551 mm")),
    Sketcher.Constraint("DistanceY", 20, 2, -1, 1, Q("15.428578 mm")),
    Sketcher.Constraint("DistanceY", 25, 2, -1, 1, Q("11.559319 mm")),
    Sketcher.Constraint("DistanceY", 28, 2, -1, 1, Q("20.193028 mm")),
    Sketcher.Constraint("DistanceX", -1, 1, 32, 2, Q("13.081429 mm")),
    Sketcher.Constraint("DistanceY", 34, 2, -1, 1, Q("19.86006 mm")),
    Sketcher.Constraint("DistanceY", 38, 2, -1, 1, Q("22.544189 mm")),
    Sketcher.Constraint("DistanceY", 42, 2, -1, 1, Q("22.03106 mm")),
    Sketcher.Constraint("DistanceX", -1, 1, 43, 2, Q("6.45683 mm")),
    Sketcher.Constraint("DistanceX", -1, 1, 0, 2, Q("22.672548 mm")),
    Sketcher.Constraint("DistanceX", -1, 1, 12, 2, Q("20.923514 mm")),
    Sketcher.Constraint("DistanceX", -1, 1, 21, 2, Q("18.085564 mm")),
    Sketcher.Constraint("DistanceX", -1, 1, 29, 2, Q("12.302803 mm")),
    Sketcher.Constraint("DistanceX", -1, 1, 36, 2, Q("0.946557 mm")),
])
sketch2.setExpression("Constraints[167]", "Params.sketch2_radius")
sketch2.setExpression("Constraints[168]", "Params.sketch2_radius2")
pocket1 = body.newObject("PartDesign::Pocket", "Pocket")
pocket1.Profile = sketch2
pocket1.setExpression("Length", "Params.pocket1_length")

# Sketch on XY plane
sketch3 = body.newObject("Sketcher::SketchObject", "Sketch002")
sketch3.AttachmentSupport = (doc.getObject("XY_Plane"), [""])
sketch3.MapMode = "FlatFace"
sketch3.AttachmentOffset = App.Placement(App.Vector(0, 0, 44), App.Rotation())
sketch3.addGeometry([
    Part.LineSegment(App.Vector(7.9, 20, 0), App.Vector(8.2, 21.2, 0)),  # 0
    Part.ArcOfCircle(Part.Circle(App.Vector(0, 0, 0), App.Vector(0, 0, 1), 22.7), math.radians(68.72), math.radians(75.28)),  # 1
    Part.LineSegment(App.Vector(5.8, 22, 0), App.Vector(5.4, 20.8, 0)),  # 2
    Part.LineSegment(App.Vector(5.4, 20.8, 0), App.Vector(5.2, 20.3, 0)),  # 3
    Part.ArcOfCircle(Part.Circle(App.Vector(0, 0, 0), App.Vector(0, 0, 1), 21), math.radians(68.45), math.radians(75.55)),  # 4
    Part.LineSegment(App.Vector(7.7, 19.5, 0), App.Vector(7.9, 20, 0)),  # 5
], False)
sketch3.addConstraint([
    Sketcher.Constraint("Coincident", 0, 2, 1, 1),
    Sketcher.Constraint("Coincident", 1, 2, 2, 1),
    Sketcher.Constraint("Coincident", 2, 2, 3, 1),
    Sketcher.Constraint("Coincident", 3, 2, 4, 2),
    Sketcher.Constraint("Coincident", 4, 1, 5, 1),
    Sketcher.Constraint("Coincident", 5, 2, 0, 1),
    Sketcher.Constraint("Coincident", 1, 3, -1, 1),
    Sketcher.Constraint("Coincident", 4, 3, -1, 1),
    Sketcher.Constraint("Parallel", 0, 2),
    Sketcher.Constraint("Parallel", 2, 3),
    Sketcher.Constraint("Parallel", 3, 5),
    Sketcher.Constraint("Equal", 0, 2),
    Sketcher.Constraint("Equal", 3, 5),
    Sketcher.Constraint("Radius", 4, Q("21 mm")),
    Sketcher.Constraint("Radius", 1, Q("22.7 mm")),
    Sketcher.Constraint("Angle", 0, Q("72 deg")),
    Sketcher.Constraint("DistanceX", -1, 1, 1, 2, Q("5.7668 mm")),
    Sketcher.Constraint("DistanceX", 3, 2, 2, 2, Q("0.154798 mm")),
])
sketch3.setExpression("Constraints[13]", "Params.sketch3_radius")
sketch3.setExpression("Constraints[14]", "Params.sketch3_radius2")
pocket2 = body.newObject("PartDesign::Pocket", "Pocket001")
pocket2.Profile = sketch3
pocket2.setExpression("Length", "Params.pocket2_length")

# Sketch on XY plane
sketch4 = body.newObject("Sketcher::SketchObject", "Sketch003")
sketch4.AttachmentSupport = (doc.getObject("XY_Plane"), [""])
sketch4.MapMode = "FlatFace"
sketch4.AttachmentOffset = App.Placement(App.Vector(0, 0, 44), App.Rotation())
sketch4.addGeometry([
    Part.LineSegment(App.Vector(15.5, 14.9, 0), App.Vector(16.3, 15.8, 0)),  # 0
    Part.ArcOfCircle(Part.Circle(App.Vector(0, 0, 0), App.Vector(0, 0, 1), 22.7), math.radians(44.18), math.radians(47.98)),  # 1
    Part.LineSegment(App.Vector(15.2, 16.9, 0), App.Vector(14.4, 15.9, 0)),  # 2
    Part.LineSegment(App.Vector(14.4, 15.9, 0), App.Vector(14.1, 15.6, 0)),  # 3
    Part.ArcOfCircle(Part.Circle(App.Vector(0, 0, 0), App.Vector(0, 0, 1), 21), math.radians(43.71), math.radians(47.82)),  # 4
    Part.LineSegment(App.Vector(15.2, 14.5, 0), App.Vector(15.5, 14.9, 0)),  # 5
], False)
sketch4.addConstraint([
    Sketcher.Constraint("Coincident", 0, 2, 1, 1),
    Sketcher.Constraint("Coincident", 1, 2, 2, 1),
    Sketcher.Constraint("Coincident", 2, 2, 3, 1),
    Sketcher.Constraint("Coincident", 3, 2, 4, 2),
    Sketcher.Constraint("Coincident", 4, 1, 5, 1),
    Sketcher.Constraint("Coincident", 5, 2, 0, 1),
    Sketcher.Constraint("Coincident", 1, 3, -1, 1),
    Sketcher.Constraint("Coincident", 4, 3, -1, 1),
    Sketcher.Constraint("Parallel", 0, 2),
    Sketcher.Constraint("Parallel", 2, 3),
    Sketcher.Constraint("Parallel", 3, 5),
    Sketcher.Constraint("Radius", 4, Q("21 mm")),
    Sketcher.Constraint("Radius", 1, Q("22.7 mm")),
    Sketcher.Constraint("Angle", 0, Q("50 deg")),
    Sketcher.Constraint("DistanceX", -1, 1, 2, 2, Q("14.423199 mm")),
    Sketcher.Constraint("DistanceX", -1, 1, 0, 2, Q("16.27809 mm")),
    Sketcher.Constraint("DistanceX", -1, 1, 1, 2, Q("15.19505 mm")),
    Sketcher.Constraint("DistanceX", -1, 1, 5, 2, Q("15.50253 mm")),
])
sketch4.setExpression("Constraints[11]", "Params.sketch4_radius")
sketch4.setExpression("Constraints[12]", "Params.sketch4_radius2")
pocket3 = body.newObject("PartDesign::Pocket", "Pocket002")
pocket3.Profile = sketch4
pocket3.setExpression("Length", "Params.pocket3_length")

doc.recompute()
